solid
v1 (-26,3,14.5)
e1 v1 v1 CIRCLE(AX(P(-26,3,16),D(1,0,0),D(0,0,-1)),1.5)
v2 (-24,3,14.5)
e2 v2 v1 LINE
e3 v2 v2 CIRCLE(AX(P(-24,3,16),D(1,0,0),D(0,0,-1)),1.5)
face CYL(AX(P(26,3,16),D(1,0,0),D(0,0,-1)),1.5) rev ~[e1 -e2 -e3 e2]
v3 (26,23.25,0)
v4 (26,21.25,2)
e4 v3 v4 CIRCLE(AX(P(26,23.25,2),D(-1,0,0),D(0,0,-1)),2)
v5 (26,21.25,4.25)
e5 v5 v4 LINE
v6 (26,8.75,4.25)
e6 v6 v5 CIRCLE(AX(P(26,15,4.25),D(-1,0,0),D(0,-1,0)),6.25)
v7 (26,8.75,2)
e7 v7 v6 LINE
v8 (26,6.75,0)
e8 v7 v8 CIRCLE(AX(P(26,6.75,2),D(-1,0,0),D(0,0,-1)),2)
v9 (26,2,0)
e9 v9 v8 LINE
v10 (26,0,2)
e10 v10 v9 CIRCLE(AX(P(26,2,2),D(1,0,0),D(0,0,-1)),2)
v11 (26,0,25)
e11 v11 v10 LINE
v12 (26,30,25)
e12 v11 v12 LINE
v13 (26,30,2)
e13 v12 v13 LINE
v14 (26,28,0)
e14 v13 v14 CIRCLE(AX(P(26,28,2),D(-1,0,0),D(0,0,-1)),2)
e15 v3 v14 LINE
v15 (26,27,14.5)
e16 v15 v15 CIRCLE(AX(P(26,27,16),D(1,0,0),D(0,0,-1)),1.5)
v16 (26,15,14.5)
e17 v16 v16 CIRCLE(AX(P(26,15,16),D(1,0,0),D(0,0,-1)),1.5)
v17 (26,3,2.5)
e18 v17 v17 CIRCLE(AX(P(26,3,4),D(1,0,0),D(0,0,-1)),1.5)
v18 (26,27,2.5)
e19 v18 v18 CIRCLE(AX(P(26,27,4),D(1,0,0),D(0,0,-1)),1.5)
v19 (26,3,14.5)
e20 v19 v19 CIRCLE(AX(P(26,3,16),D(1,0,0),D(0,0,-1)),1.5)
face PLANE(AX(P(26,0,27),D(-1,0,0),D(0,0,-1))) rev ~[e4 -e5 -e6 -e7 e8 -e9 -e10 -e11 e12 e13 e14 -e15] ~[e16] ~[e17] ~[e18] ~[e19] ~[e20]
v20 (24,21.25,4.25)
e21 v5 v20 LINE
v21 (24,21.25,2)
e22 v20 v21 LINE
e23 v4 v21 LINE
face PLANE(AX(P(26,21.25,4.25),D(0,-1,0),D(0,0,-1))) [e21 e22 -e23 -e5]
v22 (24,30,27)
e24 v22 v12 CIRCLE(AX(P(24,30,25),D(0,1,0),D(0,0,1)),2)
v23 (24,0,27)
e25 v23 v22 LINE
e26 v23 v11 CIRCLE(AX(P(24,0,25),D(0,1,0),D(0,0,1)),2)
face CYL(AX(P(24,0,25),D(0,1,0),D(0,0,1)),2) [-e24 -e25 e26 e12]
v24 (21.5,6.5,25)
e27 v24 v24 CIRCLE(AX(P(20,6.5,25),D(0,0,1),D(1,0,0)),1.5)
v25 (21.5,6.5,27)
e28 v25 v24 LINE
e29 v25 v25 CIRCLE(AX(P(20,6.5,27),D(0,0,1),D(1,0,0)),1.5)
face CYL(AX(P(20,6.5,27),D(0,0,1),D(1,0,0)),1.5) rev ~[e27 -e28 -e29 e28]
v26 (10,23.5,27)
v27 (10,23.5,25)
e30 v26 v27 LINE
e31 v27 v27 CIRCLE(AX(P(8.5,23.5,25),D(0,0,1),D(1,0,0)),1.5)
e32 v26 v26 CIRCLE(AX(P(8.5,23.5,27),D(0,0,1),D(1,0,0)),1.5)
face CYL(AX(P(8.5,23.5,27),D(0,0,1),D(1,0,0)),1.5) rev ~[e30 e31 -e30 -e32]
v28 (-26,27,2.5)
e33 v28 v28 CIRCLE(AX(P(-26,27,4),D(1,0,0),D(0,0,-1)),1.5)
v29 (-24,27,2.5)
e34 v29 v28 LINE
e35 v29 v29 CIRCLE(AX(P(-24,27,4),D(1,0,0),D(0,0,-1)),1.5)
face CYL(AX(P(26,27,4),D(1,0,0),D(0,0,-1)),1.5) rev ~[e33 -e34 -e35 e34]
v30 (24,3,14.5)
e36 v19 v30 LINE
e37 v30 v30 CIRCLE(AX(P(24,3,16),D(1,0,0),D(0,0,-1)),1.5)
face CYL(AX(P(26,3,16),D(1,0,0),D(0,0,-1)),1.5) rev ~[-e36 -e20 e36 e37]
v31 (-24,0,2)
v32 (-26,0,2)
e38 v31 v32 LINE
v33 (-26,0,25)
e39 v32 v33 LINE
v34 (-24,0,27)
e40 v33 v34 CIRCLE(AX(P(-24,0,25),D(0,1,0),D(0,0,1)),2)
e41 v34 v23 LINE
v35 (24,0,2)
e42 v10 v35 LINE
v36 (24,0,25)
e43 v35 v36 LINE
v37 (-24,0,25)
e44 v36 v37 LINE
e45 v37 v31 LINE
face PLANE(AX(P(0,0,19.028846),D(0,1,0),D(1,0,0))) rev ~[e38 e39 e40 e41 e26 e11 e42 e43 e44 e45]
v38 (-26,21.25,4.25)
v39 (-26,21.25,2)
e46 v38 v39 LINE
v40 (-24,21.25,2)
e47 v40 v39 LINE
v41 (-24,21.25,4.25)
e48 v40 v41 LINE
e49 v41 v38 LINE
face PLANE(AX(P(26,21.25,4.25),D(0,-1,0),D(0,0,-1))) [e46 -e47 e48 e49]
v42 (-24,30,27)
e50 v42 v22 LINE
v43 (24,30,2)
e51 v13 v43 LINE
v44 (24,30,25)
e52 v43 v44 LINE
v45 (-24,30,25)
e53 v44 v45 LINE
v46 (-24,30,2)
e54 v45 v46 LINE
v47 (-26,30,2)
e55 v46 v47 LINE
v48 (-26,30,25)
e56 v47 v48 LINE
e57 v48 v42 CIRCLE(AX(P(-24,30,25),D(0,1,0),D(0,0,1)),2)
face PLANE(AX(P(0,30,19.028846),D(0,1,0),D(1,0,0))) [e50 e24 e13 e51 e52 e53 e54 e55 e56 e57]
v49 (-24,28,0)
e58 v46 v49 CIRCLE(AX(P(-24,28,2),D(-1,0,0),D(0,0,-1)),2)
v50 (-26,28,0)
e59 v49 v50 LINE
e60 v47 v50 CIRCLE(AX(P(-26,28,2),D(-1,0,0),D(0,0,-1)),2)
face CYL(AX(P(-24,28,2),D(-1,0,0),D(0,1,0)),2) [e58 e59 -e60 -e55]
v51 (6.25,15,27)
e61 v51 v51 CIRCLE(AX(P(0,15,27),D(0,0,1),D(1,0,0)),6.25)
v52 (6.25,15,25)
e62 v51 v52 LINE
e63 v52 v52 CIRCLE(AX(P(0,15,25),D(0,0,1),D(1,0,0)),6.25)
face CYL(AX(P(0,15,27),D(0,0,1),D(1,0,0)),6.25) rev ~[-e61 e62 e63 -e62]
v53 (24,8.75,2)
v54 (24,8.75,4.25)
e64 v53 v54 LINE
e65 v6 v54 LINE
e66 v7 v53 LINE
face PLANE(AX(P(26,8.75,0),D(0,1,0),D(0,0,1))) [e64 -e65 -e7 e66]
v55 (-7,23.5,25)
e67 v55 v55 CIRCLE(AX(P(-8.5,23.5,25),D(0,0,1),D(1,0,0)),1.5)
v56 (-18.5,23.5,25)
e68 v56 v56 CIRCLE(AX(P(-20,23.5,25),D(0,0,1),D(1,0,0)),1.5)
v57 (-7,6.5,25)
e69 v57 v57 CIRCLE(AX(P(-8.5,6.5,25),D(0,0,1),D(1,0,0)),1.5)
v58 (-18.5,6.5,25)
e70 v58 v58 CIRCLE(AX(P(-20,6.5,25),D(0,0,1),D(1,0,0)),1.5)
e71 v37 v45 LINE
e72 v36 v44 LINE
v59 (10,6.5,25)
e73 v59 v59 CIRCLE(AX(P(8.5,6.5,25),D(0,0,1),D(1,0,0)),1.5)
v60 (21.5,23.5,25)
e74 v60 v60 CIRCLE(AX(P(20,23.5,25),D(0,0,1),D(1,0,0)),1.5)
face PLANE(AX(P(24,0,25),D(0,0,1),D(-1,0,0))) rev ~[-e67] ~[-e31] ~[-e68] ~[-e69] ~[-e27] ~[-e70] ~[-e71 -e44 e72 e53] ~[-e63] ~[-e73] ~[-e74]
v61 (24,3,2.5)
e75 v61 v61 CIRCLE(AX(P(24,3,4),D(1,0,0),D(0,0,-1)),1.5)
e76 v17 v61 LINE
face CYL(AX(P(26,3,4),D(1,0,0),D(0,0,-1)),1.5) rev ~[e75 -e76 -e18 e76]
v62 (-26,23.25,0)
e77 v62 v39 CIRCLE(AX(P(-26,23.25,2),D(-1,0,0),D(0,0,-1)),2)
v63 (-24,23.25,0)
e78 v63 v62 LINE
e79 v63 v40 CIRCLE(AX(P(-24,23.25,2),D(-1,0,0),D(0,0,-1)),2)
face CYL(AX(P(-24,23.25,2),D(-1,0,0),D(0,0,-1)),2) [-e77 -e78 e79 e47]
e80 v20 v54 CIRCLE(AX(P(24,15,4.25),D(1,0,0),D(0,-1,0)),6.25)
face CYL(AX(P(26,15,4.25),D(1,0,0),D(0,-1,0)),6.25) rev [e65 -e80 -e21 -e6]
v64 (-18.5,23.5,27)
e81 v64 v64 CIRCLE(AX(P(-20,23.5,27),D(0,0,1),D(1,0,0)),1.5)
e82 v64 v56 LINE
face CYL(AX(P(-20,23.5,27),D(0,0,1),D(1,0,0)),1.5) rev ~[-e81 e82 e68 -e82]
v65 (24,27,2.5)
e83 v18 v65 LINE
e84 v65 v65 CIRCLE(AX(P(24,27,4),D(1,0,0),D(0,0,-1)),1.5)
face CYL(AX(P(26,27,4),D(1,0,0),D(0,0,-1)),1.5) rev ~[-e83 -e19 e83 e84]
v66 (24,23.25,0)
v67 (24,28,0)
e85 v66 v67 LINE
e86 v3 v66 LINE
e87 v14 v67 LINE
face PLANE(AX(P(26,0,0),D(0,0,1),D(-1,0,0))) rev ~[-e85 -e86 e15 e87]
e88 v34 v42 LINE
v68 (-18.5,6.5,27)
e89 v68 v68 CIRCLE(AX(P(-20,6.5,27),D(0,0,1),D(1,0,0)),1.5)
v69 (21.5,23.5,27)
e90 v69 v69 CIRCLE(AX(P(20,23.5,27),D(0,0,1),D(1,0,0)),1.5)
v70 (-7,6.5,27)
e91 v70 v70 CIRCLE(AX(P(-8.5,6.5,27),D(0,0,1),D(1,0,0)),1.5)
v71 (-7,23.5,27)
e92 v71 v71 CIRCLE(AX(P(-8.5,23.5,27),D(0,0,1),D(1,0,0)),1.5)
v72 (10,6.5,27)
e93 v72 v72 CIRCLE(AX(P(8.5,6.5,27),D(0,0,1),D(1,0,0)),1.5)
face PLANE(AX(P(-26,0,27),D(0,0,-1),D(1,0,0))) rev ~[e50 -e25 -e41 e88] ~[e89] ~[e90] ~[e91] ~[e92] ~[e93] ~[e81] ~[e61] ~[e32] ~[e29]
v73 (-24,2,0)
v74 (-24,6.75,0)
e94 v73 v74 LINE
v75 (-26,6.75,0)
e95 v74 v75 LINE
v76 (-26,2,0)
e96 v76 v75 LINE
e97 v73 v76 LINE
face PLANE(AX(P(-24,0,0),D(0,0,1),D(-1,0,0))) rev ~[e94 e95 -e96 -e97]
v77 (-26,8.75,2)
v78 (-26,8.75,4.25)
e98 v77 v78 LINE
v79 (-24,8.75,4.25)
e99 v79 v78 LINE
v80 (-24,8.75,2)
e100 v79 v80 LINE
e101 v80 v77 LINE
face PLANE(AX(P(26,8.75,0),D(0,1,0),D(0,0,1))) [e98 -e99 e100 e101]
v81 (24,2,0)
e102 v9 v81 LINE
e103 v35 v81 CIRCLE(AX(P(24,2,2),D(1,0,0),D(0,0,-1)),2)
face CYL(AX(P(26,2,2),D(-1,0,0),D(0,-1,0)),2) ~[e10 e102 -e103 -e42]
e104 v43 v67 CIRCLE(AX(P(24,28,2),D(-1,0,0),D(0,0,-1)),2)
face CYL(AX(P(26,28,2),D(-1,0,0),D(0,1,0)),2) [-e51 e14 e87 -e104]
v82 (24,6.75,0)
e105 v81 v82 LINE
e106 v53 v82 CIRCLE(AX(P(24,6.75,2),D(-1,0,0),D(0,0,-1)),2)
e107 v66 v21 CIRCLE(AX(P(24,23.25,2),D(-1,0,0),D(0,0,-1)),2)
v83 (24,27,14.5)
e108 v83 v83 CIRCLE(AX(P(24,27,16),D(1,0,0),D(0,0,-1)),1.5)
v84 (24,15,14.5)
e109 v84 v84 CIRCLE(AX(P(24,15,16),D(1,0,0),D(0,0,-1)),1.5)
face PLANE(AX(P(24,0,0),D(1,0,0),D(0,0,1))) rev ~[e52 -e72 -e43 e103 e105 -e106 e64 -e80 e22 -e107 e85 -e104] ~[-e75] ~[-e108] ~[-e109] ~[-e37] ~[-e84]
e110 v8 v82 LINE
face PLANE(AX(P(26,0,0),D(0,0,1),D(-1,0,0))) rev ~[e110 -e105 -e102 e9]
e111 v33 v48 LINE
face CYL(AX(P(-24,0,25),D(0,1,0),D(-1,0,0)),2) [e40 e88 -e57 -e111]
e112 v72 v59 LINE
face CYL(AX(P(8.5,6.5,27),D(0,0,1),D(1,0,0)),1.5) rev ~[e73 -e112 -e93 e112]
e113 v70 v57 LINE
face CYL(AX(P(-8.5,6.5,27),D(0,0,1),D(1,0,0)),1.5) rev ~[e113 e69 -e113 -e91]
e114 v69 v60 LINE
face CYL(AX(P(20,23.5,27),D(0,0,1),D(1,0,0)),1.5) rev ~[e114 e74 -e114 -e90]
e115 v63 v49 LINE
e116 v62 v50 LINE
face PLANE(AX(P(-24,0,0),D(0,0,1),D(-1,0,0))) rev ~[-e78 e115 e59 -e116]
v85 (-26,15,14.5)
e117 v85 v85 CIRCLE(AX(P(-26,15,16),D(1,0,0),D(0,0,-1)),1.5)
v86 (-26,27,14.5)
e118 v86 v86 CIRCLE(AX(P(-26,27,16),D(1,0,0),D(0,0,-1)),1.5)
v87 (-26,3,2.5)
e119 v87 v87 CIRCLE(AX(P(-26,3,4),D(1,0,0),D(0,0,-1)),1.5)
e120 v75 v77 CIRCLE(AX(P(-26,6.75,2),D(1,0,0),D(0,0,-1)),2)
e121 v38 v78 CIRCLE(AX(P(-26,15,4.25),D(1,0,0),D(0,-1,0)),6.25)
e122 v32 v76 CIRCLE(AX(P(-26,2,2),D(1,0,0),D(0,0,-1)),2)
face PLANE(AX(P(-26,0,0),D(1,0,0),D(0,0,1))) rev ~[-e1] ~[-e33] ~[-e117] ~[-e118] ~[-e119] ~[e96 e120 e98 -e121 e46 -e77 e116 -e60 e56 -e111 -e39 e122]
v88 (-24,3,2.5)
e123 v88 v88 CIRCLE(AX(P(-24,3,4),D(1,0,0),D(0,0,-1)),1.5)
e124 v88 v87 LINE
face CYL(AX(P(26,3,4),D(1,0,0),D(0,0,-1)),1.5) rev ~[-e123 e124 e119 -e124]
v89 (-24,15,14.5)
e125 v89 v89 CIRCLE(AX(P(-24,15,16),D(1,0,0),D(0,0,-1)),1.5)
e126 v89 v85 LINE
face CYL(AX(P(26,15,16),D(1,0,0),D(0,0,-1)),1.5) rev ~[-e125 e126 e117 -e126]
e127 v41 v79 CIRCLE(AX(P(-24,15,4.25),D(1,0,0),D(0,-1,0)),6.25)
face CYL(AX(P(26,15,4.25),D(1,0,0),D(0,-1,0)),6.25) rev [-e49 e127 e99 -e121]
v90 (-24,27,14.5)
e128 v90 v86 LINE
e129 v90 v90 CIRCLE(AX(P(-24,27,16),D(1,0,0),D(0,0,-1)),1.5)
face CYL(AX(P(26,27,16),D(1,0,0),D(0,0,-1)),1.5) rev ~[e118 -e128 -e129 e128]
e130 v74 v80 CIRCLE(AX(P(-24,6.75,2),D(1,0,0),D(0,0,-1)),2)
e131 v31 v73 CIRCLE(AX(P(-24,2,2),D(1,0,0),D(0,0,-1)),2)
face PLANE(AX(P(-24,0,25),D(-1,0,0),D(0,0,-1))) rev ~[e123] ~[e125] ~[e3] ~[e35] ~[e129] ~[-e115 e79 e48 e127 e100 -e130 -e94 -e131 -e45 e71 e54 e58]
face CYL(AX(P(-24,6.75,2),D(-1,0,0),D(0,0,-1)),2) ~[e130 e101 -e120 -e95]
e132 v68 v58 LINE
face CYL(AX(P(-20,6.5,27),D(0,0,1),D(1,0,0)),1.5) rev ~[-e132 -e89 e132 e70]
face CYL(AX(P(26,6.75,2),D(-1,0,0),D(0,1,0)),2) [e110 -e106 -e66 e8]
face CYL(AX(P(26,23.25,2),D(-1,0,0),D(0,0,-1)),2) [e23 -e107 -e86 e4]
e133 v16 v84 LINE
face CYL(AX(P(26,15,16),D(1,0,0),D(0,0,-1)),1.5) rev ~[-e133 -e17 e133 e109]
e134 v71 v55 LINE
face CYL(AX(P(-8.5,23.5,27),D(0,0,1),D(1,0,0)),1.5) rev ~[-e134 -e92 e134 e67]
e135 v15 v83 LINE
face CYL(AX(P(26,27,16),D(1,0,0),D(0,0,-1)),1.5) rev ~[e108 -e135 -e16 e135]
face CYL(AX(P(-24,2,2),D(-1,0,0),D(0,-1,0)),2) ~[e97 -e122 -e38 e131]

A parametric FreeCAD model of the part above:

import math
import FreeCAD as App
import Part
import Sketcher
from FreeCAD import Vector


def edges_at(feature, points):
    """Names of the edges that pass closest to the given points."""
    edges = feature.Shape.Edges
    near = lambda p: min(range(len(edges)), key=lambda i: edges[i].distToShape(Part.Vertex(*p))[0])
    return sorted({f"Edge{near(p) + 1}" for p in points})

doc = App.newDocument("Part")
body = doc.addObject("PartDesign::Body", "Body")

# Sketch on XZ plane
sketch1 = body.newObject("Sketcher::SketchObject", "Sketch")
sketch1.AttachmentSupport = (doc.getObject("XZ_Plane"), [""])
sketch1.MapMode = "FlatFace"
sketch1.addGeometry([
    Part.LineSegment(Vector(24, 0, 0), Vector(24, 25, 0)),  # 0
    Part.LineSegment(Vector(24, 25, 0), Vector(-24, 25, 0)),  # 1
    Part.LineSegment(Vector(-24, 25, 0), Vector(-24, 0, 0)),  # 2
    Part.LineSegment(Vector(-24, 0, 0), Vector(-26, 0, 0)),  # 3
    Part.LineSegment(Vector(-26, 0, 0), Vector(-26, 27, 0)),  # 4
    Part.LineSegment(Vector(-26, 27, 0), Vector(26, 27, 0)),  # 5
    Part.LineSegment(Vector(26, 27, 0), Vector(26, 0, 0)),  # 6
    Part.LineSegment(Vector(26, 0, 0), Vector(24, 0, 0)),  # 7
], False)
sketch1.addConstraint([
    Sketcher.Constraint("Coincident", 0, 2, 1, 1),
    Sketcher.Constraint("Coincident", 1, 2, 2, 1),
    Sketcher.Constraint("Coincident", 2, 2, 3, 1),
    Sketcher.Constraint("Coincident", 3, 2, 4, 1),
    Sketcher.Constraint("Coincident", 4, 2, 5, 1),
    Sketcher.Constraint("Coincident", 5, 2, 6, 1),
    Sketcher.Constraint("Coincident", 6, 2, 7, 1),
    Sketcher.Constraint("Coincident", 7, 2, 0, 1),
    Sketcher.Constraint("Vertical", 0),
    Sketcher.Constraint("Horizontal", 1),
    Sketcher.Constraint("Vertical", 2),
    Sketcher.Constraint("Horizontal", 3),
    Sketcher.Constraint("Vertical", 4),
    Sketcher.Constraint("Horizontal", 5),
    Sketcher.Constraint("Vertical", 6),
    Sketcher.Constraint("Horizontal", 7),
    Sketcher.Constraint("Symmetric", 3, 2, 6, 2, -1, 1),
    Sketcher.Constraint("Symmetric", 2, 2, 7, 2, -2),
    Sketcher.Constraint("DistanceX", 1, 2, 1, 1, 48.0),
    Sketcher.Constraint("DistanceX", 3, 2, 3, 1, 2.0),
    Sketcher.Constraint("DistanceY", 0, 1, 0, 2, 25.0),
    Sketcher.Constraint("DistanceY", 4, 1, 4, 2, 27.0),
])
pad1 = body.newObject("PartDesign::Pad", "Pad")
pad1.Profile = sketch1
pad1.Length = 30
pad1.Reversed = True

# Sketch on YZ plane
sketch2 = body.newObject("Sketcher::SketchObject", "Sketch001")
sketch2.AttachmentSupport = (doc.getObject("YZ_Plane"), [""])
sketch2.MapMode = "FlatFace"
sketch2.AttachmentOffset = App.Placement(Vector(0, 0, 26), App.Rotation())
sketch2.addGeometry([
    Part.Circle(Vector(27, 4, 0), Vector(0, 0, 1), 1.5),  # 0
    Part.Circle(Vector(3, 4, 0), Vector(0, 0, 1), 1.5),  # 1
    Part.Circle(Vector(15, 16, 0), Vector(0, 0, 1), 1.5),  # 2
    Part.Circle(Vector(27, 16, 0), Vector(0, 0, 1), 1.5),  # 3
    Part.Circle(Vector(3, 16, 0), Vector(0, 0, 1), 1.5),  # 4
    Part.LineSegment(Vector(21.25, 0, 0), Vector(21.25, 4.25, 0)),  # 5
    Part.ArcOfCircle(Part.Circle(Vector(15, 4.25, 0), Vector(0, 0, 1), 6.25), math.radians(0), math.radians(180)),  # 6
    Part.LineSegment(Vector(8.75, 4.25, 0), Vector(8.75, 0, 0)),  # 7
    Part.LineSegment(Vector(8.75, 0, 0), Vector(21.25, 0, 0)),  # 8
], False)
sketch2.addConstraint([
    Sketcher.Constraint("Tangent", 5, 2, 6, 1),
    Sketcher.Constraint("Tangent", 6, 2, 7, 1),
    Sketcher.Constraint("Coincident", 7, 2, 8, 1),
    Sketcher.Constraint("Coincident", 8, 2, 5, 1),
    Sketcher.Constraint("Vertical", 5),
    Sketcher.Constraint("Vertical", 7),
    Sketcher.Constraint("Horizontal", 8),
    Sketcher.Constraint("Equal", 0, 1),
    Sketcher.Constraint("Equal", 1, 2),
    Sketcher.Constraint("Equal", 2, 3),
    Sketcher.Constraint("Equal", 3, 4),
    Sketcher.Constraint("PointOnObject", 7, 2, -1),
    Sketcher.Constraint("Horizontal", 0, 3, 1, 3),
    Sketcher.Constraint("Horizontal", 2, 3, 3, 3),
    Sketcher.Constraint("Horizontal", 3, 3, 4, 3),
    Sketcher.Constraint("Vertical", 0, 3, 3, 3),
    Sketcher.Constraint("Vertical", 1, 3, 4, 3),
    Sketcher.Constraint("Vertical", 2, 3, 6, 3),
    Sketcher.Constraint("Diameter", 0, 3.0),
    Sketcher.Constraint("Radius", 6, 6.25),
    Sketcher.Constraint("DistanceX", -1, 1, 0, 3, 27.0),
    Sketcher.Constraint("DistanceY", -1, 1, 0, 3, 4.0),
    Sketcher.Constraint("DistanceX", -1, 1, 1, 3, 3.0),
    Sketcher.Constraint("DistanceX", -1, 1, 2, 3, 15.0),
    Sketcher.Constraint("DistanceY", -1, 1, 2, 3, 16.0),
    Sketcher.Constraint("DistanceY", 5, 1, 5, 2, 4.25),
])
pocket1 = body.newObject("PartDesign::Pocket", "Pocket")
pocket1.Profile = sketch2
pocket1.Type = "ThroughAll"

# Sketch on XY plane
sketch3 = body.newObject("Sketcher::SketchObject", "Sketch002")
sketch3.AttachmentSupport = (doc.getObject("XY_Plane"), [""])
sketch3.MapMode = "FlatFace"
sketch3.AttachmentOffset = App.Placement(Vector(0, 0, 27), App.Rotation())
sketch3.addGeometry([
    Part.Circle(Vector(0, 15, 0), Vector(0, 0, 1), 6.25),  # 0
    Part.Circle(Vector(20, 23.5, 0), Vector(0, 0, 1), 1.5),  # 1
    Part.Circle(Vector(20, 6.5, 0), Vector(0, 0, 1), 1.5),  # 2
    Part.Circle(Vector(8.5, 6.5, 0), Vector(0, 0, 1), 1.5),  # 3
    Part.Circle(Vector(8.5, 23.5, 0), Vector(0, 0, 1), 1.5),  # 4
    Part.Circle(Vector(-8.5, 6.5, 0), Vector(0, 0, 1), 1.5),  # 5
    Part.Circle(Vector(-20, 6.5, 0), Vector(0, 0, 1), 1.5),  # 6
    Part.Circle(Vector(-8.5, 23.5, 0), Vector(0, 0, 1), 1.5),  # 7
    Part.Circle(Vector(-20, 23.5, 0), Vector(0, 0, 1), 1.5),  # 8
], False)
sketch3.addConstraint([
    Sketcher.Constraint("Equal", 1, 2),
    Sketcher.Constraint("Equal", 2, 3),
    Sketcher.Constraint("Equal", 3, 4),
    Sketcher.Constraint("Equal", 4, 5),
    Sketcher.Constraint("Equal", 5, 6),
    Sketcher.Constraint("Equal", 6, 7),
    Sketcher.Constraint("Equal", 7, 8),
    Sketcher.Constraint("Symmetric", 3, 3, 5, 3, -2),
    Sketcher.Constraint("Symmetric", 2, 3, 6, 3, -2),
    Sketcher.Constraint("Symmetric", 4, 3, 7, 3, -2),
    Sketcher.Constraint("Symmetric", 1, 3, 8, 3, -2),
    Sketcher.Constraint("PointOnObject", 0, 3, -2),
    Sketcher.Constraint("Horizontal", 2, 3, 3, 3),
    Sketcher.Constraint("Horizontal", 1, 3, 4, 3),
    Sketcher.Constraint("Vertical", 1, 3, 2, 3),
    Sketcher.Constraint("Vertical", 3, 3, 4, 3),
    Sketcher.Constraint("Diameter", 1, 3.0),
    Sketcher.Constraint("Diameter", 0, 12.5),
    Sketcher.Constraint("DistanceY", -1, 1, 0, 3, 15.0),
    Sketcher.Constraint("DistanceX", -1, 1, 1, 3, 20.0),
    Sketcher.Constraint("DistanceY", 2, 3, 1, 3, 17.0),
    Sketcher.Constraint("DistanceX", 5, 3, 3, 3, 17.0),
    Sketcher.Constraint("DistanceY", -1, 1, 1, 3, 23.5),
])
pocket2 = body.newObject("PartDesign::Pocket", "Pocket001")
pocket2.Profile = sketch3
pocket2.Length = 30
doc.recompute()

fillet = body.newObject("PartDesign::Fillet", "Fillet")
fillet.Base = (pocket2, edges_at(pocket2, [
    (25, 0, 0),
    (26, 15, 27),
    (-26, 15, 27),
    (-25, 30, 0),
    (25, 30, 0),
    (25, 21.25, 0),
    (-25, 21.25, 0),
    (25, 8.75, 0),
    (-25, 8.75, 0),
    (-25, 0, 0),
]))
fillet.Radius = 2

doc.recompute()
